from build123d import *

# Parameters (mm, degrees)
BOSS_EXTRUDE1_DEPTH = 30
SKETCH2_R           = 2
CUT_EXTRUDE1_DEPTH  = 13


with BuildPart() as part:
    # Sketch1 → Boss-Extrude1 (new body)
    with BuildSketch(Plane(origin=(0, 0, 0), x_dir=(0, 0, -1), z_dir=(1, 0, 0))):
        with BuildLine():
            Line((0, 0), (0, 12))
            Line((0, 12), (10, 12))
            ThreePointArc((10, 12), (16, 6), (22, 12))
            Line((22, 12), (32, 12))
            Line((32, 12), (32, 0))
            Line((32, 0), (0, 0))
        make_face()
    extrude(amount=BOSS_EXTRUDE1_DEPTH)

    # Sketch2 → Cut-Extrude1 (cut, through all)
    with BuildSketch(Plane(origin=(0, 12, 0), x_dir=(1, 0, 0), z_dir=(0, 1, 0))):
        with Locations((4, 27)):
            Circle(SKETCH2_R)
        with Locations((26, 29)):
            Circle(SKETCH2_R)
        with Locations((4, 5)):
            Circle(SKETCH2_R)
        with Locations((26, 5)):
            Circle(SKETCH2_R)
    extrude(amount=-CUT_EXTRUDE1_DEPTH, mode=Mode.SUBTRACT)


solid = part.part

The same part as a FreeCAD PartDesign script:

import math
import FreeCAD as App
import Part
import Sketcher
from FreeCAD import Vector

doc = App.newDocument("Part")
body = doc.addObject("PartDesign::Body", "Body")

sketch1 = body.newObject("Sketcher::SketchObject", "Sketch")
sketch1.AttachmentSupport = (doc.getObject("YZ_Plane"), [""])
sketch1.MapMode = "FlatFace"
sketch1.addGeometry([
    Part.LineSegment(Vector(12, 0, 0), Vector(0, 0, 0)),
    Part.LineSegment(Vector(0, 0, 0), Vector(0, -32, 0)),
    Part.LineSegment(Vector(0, -32, 0), Vector(12, -32, 0)),
    Part.LineSegment(Vector(12, -32, 0), Vector(12, -22, 0)),
    Part.ArcOfCircle(Part.Circle(Vector(12, -16, 0), Vector(0, 0, 1), 6), math.radians(90), math.radians(270)),
    Part.LineSegment(Vector(12, -10, 0), Vector(12, 0, 0)),
], False)
sketch1.addConstraint([
    Sketcher.Constraint("Coincident", 0, 2, 1, 1),
    Sketcher.Constraint("Coincident", 1, 2, 2, 1),
    Sketcher.Constraint("Coincident", 2, 2, 3, 1),
    Sketcher.Constraint("Coincident", 3, 2, 4, 2),
    Sketcher.Constraint("Coincident", 4, 1, 5, 1),
    Sketcher.Constraint("Coincident", 5, 2, 0, 1),
    Sketcher.Constraint("Horizontal", 0),
    Sketcher.Constraint("Vertical", 1),
    Sketcher.Constraint("Horizontal", 2),
    Sketcher.Constraint("Vertical", 3),
    Sketcher.Constraint("Vertical", 5),
    Sketcher.Constraint("Coincident", 0, 2, -1, 1),
    Sketcher.Constraint("Vertical", 4, 3, 2, 2),
    Sketcher.Constraint("Vertical", 3, 2, 4, 1),
    Sketcher.Constraint("Equal", 3, 5),
    Sketcher.Constraint("Radius", 4, 6.0),
    Sketcher.Constraint("DistanceX", 0, 2, 0, 1, 12.0),
    Sketcher.Constraint("DistanceY", 1, 2, 1, 1, 32.0),
])
pad1 = body.newObject("PartDesign::Pad", "Pad")
pad1.Profile = sketch1
pad1.Length = 30

sketch2 = body.newObject("Sketcher::SketchObject", "Sketch001")
sketch2.AttachmentSupport = (doc.getObject("XZ_Plane"), [""])
sketch2.MapMode = "FlatFace"
sketch2.AttachmentOffset = App.Placement(Vector(0, 0, -12), App.Rotation())
sketch2.addGeometry([
    Part.Circle(Vector(4, -27, 0), Vector(0, 0, 1), 2),
    Part.Circle(Vector(26, -29, 0), Vector(0, 0, 1), 2),
    Part.Circle(Vector(4, -5, 0), Vector(0, 0, 1), 2),
    Part.Circle(Vector(26, -5, 0), Vector(0, 0, 1), 2),
], False)
sketch2.addConstraint([
    Sketcher.Constraint("Equal", 0, 1),
    Sketcher.Constraint("Equal", 1, 2),
    Sketcher.Constraint("Equal", 2, 3),
    Sketcher.Constraint("Horizontal", 2, 3, 3, 3),
    Sketcher.Constraint("Vertical", 0, 3, 2, 3),
    Sketcher.Constraint("Vertical", 1, 3, 3, 3),
    Sketcher.Constraint("Diameter", 0, 4.0),
    Sketcher.Constraint("DistanceX", -1, 1, 0, 3, 4.0),
    Sketcher.Constraint("DistanceY", 0, 3, -1, 1, 27.0),
    Sketcher.Constraint("DistanceX", -1, 1, 1, 3, 26.0),
    Sketcher.Constraint("DistanceY", 1, 3, -1, 1, 29.0),
    Sketcher.Constraint("DistanceY", 2, 3, -1, 1, 5.0),
])
pocket1 = body.newObject("PartDesign::Pocket", "Pocket")
pocket1.Profile = sketch2
pocket1.Type = "ThroughAll"
pocket1.Reversed = True

doc.recompute()
